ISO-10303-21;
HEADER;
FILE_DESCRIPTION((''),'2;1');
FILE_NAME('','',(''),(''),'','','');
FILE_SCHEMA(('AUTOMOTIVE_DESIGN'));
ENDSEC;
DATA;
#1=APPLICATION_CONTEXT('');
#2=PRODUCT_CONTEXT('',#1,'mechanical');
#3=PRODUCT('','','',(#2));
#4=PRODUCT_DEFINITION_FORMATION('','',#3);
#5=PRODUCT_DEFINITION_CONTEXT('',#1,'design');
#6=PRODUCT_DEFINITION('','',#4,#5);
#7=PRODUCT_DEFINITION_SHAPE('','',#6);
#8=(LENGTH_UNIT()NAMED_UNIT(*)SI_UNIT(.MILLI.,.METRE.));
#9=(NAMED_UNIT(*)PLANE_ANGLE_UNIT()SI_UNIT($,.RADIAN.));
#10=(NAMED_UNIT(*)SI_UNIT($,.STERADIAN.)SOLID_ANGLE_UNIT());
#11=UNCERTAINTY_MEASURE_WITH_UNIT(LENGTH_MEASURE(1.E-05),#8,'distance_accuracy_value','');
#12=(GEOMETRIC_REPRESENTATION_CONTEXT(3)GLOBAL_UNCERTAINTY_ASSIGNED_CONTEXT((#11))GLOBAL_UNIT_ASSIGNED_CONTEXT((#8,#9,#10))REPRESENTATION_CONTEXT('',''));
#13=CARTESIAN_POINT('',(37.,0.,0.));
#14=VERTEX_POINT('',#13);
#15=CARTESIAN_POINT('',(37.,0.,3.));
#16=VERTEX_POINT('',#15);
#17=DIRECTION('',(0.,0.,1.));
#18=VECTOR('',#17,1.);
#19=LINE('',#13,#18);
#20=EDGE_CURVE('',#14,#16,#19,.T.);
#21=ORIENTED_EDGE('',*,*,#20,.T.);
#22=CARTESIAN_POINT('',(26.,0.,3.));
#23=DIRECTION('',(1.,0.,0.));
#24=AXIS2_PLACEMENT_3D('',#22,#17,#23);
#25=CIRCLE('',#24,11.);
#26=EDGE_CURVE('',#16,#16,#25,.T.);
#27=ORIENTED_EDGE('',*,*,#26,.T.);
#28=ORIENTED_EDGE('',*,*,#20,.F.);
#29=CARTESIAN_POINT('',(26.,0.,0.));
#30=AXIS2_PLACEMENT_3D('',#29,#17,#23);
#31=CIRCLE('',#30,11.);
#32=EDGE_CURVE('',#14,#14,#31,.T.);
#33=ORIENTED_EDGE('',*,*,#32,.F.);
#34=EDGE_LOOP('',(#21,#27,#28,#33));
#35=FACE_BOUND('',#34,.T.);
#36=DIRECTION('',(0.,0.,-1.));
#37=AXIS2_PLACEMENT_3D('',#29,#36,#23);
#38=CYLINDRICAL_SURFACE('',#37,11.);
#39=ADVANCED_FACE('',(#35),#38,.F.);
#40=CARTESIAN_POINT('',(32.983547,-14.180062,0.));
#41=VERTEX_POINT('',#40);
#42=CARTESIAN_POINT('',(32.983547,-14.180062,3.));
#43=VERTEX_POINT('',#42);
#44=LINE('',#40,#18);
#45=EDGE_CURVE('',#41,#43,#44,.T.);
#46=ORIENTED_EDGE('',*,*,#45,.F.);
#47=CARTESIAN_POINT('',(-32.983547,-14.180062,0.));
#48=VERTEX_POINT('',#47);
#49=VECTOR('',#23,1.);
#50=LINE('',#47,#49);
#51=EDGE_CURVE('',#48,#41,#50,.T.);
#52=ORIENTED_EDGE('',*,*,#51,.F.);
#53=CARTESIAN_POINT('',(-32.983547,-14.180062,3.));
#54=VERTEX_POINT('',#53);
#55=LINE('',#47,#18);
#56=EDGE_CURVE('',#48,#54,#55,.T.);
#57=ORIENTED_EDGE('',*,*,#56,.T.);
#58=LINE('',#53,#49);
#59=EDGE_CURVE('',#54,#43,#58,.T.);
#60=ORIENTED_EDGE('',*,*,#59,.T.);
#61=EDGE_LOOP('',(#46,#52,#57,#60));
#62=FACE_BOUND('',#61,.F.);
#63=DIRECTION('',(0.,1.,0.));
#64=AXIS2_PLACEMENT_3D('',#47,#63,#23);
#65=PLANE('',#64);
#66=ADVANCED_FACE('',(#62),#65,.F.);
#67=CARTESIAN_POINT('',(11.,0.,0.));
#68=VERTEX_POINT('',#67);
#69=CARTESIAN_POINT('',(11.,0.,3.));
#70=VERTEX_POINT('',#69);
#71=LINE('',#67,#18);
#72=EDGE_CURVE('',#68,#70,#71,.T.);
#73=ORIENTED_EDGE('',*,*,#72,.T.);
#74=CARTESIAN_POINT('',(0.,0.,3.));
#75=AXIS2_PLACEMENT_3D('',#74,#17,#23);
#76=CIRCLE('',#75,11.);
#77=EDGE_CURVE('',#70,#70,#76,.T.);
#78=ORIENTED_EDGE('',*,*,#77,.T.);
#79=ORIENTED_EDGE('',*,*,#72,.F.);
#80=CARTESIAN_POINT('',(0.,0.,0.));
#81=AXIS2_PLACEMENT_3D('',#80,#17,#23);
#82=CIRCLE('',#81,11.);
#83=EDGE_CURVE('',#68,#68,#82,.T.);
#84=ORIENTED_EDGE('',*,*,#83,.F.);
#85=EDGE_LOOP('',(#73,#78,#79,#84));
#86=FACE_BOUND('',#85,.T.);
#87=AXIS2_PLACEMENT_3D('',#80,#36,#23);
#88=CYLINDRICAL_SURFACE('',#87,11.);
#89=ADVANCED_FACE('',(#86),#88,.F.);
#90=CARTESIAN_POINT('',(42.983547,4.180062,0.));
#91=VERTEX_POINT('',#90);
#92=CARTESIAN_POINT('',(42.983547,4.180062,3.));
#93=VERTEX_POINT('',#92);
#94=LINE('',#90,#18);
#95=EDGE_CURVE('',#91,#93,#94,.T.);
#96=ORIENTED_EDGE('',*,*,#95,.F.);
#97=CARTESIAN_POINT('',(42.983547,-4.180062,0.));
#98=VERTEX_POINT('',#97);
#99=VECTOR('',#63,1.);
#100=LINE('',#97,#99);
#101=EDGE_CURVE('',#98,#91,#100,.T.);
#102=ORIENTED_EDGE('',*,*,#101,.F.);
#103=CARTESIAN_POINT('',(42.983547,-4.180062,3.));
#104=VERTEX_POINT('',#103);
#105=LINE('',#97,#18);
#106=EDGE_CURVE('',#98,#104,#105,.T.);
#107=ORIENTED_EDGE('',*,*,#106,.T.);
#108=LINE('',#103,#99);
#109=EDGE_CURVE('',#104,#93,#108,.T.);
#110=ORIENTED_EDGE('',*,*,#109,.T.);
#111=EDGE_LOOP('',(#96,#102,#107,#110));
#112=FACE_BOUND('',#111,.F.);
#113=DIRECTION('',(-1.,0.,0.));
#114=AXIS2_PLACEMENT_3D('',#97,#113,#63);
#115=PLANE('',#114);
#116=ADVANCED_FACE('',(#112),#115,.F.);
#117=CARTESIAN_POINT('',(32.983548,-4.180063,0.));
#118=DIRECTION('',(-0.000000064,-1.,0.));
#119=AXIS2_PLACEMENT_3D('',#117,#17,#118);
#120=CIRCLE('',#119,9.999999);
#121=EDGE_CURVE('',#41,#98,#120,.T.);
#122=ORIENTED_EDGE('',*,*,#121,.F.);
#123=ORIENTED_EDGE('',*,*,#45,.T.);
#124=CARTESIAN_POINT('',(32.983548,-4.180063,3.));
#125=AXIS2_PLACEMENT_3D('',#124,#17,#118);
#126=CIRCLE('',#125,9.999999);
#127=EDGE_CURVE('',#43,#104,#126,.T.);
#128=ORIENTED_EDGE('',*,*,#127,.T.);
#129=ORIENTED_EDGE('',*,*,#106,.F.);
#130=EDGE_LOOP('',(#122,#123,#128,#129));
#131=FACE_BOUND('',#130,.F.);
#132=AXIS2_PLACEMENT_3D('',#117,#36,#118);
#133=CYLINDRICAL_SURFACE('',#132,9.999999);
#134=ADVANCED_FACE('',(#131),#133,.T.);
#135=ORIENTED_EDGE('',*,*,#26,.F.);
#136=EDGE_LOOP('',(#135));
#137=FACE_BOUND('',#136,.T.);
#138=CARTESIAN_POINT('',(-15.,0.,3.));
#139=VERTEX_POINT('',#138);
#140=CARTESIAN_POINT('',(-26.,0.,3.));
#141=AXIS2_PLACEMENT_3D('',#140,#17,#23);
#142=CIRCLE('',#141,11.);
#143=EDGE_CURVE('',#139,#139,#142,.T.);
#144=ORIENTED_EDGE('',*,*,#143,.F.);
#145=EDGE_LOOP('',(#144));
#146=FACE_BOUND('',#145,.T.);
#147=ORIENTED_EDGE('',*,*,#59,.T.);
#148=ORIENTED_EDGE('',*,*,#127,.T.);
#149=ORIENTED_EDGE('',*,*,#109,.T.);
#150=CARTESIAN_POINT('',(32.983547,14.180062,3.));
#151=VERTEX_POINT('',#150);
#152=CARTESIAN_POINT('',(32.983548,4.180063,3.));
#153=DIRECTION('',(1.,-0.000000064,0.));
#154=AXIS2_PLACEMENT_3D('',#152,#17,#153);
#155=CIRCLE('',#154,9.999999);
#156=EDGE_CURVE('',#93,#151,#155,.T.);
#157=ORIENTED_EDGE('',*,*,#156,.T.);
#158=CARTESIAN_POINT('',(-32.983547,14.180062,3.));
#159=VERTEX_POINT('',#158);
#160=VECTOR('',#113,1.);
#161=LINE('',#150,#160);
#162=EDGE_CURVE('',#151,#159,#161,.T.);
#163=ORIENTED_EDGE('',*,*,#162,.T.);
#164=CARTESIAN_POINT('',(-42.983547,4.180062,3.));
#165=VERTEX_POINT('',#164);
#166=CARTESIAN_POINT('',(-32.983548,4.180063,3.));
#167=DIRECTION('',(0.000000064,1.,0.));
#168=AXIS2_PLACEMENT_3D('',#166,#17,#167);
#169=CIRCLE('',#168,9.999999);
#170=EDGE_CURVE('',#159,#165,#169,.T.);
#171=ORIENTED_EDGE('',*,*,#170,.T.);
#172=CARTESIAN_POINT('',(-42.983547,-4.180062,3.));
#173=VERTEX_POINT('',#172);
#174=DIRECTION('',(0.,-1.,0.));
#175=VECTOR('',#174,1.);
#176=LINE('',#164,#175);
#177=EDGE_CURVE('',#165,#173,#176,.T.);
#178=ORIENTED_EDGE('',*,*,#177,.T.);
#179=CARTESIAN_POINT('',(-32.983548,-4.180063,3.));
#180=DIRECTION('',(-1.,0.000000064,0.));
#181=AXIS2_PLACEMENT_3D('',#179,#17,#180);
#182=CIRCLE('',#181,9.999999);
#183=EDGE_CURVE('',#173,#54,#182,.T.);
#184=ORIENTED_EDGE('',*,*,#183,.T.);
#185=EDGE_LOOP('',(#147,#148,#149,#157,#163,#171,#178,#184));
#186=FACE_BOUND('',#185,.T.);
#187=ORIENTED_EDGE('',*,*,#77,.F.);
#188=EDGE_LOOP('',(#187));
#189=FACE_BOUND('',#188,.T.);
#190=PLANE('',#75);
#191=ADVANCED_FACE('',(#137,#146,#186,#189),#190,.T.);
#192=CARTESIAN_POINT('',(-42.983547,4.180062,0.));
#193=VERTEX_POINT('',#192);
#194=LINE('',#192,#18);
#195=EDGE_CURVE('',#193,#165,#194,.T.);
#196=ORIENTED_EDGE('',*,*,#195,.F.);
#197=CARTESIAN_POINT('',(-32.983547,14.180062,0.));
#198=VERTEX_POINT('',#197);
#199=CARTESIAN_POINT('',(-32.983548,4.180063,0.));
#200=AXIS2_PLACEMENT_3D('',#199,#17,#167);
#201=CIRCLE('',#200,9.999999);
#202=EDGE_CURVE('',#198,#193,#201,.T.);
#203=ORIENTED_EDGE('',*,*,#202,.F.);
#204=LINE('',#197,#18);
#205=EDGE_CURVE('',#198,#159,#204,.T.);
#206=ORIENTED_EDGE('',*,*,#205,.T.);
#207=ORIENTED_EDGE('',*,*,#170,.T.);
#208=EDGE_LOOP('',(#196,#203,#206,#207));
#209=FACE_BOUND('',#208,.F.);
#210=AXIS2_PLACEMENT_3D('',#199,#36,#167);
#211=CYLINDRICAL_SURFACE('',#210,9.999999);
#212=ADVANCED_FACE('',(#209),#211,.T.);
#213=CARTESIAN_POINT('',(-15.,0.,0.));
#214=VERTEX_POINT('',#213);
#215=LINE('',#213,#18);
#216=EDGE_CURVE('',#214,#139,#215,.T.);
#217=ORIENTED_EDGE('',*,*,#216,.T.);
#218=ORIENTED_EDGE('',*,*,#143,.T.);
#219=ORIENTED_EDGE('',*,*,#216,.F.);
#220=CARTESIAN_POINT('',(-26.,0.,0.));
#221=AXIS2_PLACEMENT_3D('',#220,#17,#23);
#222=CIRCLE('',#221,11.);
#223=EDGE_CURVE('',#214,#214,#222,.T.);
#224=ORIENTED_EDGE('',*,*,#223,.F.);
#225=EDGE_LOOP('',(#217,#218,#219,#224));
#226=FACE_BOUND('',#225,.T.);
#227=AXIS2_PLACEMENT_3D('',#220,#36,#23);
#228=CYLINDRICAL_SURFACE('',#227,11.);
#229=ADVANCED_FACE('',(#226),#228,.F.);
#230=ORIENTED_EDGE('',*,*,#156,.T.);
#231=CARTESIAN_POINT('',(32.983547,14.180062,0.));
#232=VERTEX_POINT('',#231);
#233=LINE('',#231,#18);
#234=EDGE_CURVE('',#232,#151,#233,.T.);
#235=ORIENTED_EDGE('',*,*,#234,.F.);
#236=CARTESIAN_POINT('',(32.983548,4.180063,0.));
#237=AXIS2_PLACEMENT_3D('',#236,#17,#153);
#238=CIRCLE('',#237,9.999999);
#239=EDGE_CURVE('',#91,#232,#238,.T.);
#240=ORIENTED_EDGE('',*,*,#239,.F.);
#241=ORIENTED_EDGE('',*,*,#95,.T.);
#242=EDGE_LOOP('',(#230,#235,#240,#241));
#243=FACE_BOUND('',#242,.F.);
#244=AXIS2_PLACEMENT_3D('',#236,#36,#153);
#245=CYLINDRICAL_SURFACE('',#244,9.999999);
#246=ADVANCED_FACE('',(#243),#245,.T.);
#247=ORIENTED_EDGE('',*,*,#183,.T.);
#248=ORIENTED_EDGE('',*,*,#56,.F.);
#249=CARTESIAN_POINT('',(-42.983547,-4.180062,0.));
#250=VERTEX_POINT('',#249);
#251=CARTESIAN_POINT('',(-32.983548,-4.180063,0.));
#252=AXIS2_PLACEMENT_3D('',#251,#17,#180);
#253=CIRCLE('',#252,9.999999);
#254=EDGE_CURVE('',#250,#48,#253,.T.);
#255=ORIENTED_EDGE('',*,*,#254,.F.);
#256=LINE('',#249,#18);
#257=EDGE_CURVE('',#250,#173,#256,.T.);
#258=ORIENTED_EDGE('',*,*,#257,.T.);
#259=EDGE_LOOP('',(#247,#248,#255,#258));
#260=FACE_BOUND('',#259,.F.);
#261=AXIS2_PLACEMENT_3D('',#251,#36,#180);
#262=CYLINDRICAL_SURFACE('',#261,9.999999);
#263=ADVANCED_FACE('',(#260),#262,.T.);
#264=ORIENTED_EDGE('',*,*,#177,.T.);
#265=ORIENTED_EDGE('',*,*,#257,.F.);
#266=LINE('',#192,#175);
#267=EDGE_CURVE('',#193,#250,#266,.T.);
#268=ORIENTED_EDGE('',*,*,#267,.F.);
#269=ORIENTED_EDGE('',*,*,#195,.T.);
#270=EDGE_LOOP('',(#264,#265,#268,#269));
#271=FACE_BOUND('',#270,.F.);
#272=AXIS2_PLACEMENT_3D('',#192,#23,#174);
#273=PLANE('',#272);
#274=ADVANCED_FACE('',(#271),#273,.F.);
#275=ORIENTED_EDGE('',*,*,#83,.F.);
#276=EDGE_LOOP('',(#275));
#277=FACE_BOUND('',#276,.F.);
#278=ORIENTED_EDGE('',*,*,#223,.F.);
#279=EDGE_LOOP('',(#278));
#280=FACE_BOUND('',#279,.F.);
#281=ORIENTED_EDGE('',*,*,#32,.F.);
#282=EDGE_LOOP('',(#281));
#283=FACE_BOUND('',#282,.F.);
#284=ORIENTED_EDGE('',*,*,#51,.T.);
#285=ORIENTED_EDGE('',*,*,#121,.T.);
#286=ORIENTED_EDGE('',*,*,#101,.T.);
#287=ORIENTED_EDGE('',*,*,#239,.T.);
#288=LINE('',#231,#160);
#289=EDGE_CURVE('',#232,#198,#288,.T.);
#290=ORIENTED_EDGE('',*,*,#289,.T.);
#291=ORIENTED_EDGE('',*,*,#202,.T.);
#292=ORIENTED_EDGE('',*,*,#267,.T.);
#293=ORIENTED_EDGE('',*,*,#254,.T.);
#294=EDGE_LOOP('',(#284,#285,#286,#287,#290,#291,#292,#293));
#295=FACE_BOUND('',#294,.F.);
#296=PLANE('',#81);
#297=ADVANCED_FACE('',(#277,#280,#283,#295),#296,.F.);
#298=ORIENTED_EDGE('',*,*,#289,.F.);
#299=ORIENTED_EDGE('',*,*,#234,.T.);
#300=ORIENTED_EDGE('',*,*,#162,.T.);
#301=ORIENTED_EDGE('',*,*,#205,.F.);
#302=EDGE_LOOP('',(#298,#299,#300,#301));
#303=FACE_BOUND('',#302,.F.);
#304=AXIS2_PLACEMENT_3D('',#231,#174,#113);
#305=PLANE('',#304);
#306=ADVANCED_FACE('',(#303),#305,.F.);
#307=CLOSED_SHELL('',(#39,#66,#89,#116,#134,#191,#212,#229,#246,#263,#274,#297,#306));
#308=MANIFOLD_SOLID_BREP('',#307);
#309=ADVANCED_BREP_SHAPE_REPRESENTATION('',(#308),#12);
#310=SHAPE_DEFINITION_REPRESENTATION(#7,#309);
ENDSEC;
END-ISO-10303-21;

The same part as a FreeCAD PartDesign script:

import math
import FreeCAD as App
import Part
import Sketcher
Q = App.Units.Quantity

doc = App.newDocument("Part")
params = doc.addObject("Spreadsheet::Sheet", "Params")
for row, (alias, value) in enumerate([
    ("sketch1_diameter", "22 mm"),
    ("sketch1_radius", "9.999999 mm"),
    ("pad1_length", "3 mm"),
], start=1):
    params.set(f"A{row}", alias)
    params.set(f"B{row}", "=" + value)
    params.setAlias(f"B{row}", alias)

body = doc.addObject("PartDesign::Body", "Body")

# Sketch on XY plane
sketch1 = body.newObject("Sketcher::SketchObject", "Sketch")
sketch1.AttachmentSupport = (doc.getObject("XY_Plane"), [""])
sketch1.MapMode = "FlatFace"
sketch1.addGeometry(Part.LineSegment(App.Vector(33, 14, 0), App.Vector(-33, 14, 0)), False)
sketch1.addGeometry(Part.ArcOfCircle(Part.Circle(App.Vector(-33, 4, 0), App.Vector(0, 0, 1), 10), math.radians(90), math.radians(180)), False)
sketch1.addGeometry(Part.LineSegment(App.Vector(-43, 4, 0), App.Vector(-43, -4, 0)), False)
sketch1.addGeometry(Part.ArcOfCircle(Part.Circle(App.Vector(-33, -4, 0), App.Vector(0, 0, 1), 10), math.radians(180), math.radians(270)), False)
sketch1.addGeometry(Part.LineSegment(App.Vector(-33, -14, 0), App.Vector(33, -14, 0)), False)
sketch1.addGeometry(Part.ArcOfCircle(Part.Circle(App.Vector(33, -4, 0), App.Vector(0, 0, 1), 10), math.radians(-90), math.radians(0)), False)
sketch1.addGeometry(Part.LineSegment(App.Vector(43, -4, 0), App.Vector(43, 4, 0)), False)
sketch1.addGeometry(Part.ArcOfCircle(Part.Circle(App.Vector(33, 4, 0), App.Vector(0, 0, 1), 10), math.radians(0), math.radians(90)), False)
sketch1.addGeometry(Part.Circle(App.Vector(-26, 0, 0), App.Vector(0, 0, 1), 11), False)
sketch1.addGeometry(Part.Circle(App.Vector(0, 0, 0), App.Vector(0, 0, 1), 11), False)
sketch1.addGeometry(Part.Circle(App.Vector(26, 0, 0), App.Vector(0, 0, 1), 11), False)
sketch1.addConstraint(Sketcher.Constraint("Tangent", 0, 2, 1, 1))
sketch1.addConstraint(Sketcher.Constraint("Tangent", 1, 2, 2, 1))
sketch1.addConstraint(Sketcher.Constraint("Tangent", 2, 2, 3, 1))
sketch1.addConstraint(Sketcher.Constraint("Tangent", 3, 2, 4, 1))
sketch1.addConstraint(Sketcher.Constraint("Tangent", 4, 2, 5, 1))
sketch1.addConstraint(Sketcher.Constraint("Tangent", 5, 2, 6, 1))
sketch1.addConstraint(Sketcher.Constraint("Tangent", 6, 2, 7, 1))
sketch1.addConstraint(Sketcher.Constraint("Tangent", 7, 2, 0, 1))
sketch1.addConstraint(Sketcher.Constraint("Horizontal", 0))
sketch1.addConstraint(Sketcher.Constraint("Vertical", 2))
sketch1.addConstraint(Sketcher.Constraint("Horizontal", 4))
sketch1.addConstraint(Sketcher.Constraint("Vertical", 6))
sketch1.addConstraint(Sketcher.Constraint("Coincident", 9, 3, -1, 1))
sketch1.addConstraint(Sketcher.Constraint("Equal", 1, 3))
sketch1.addConstraint(Sketcher.Constraint("Equal", 3, 5))
sketch1.addConstraint(Sketcher.Constraint("Equal", 5, 7))
sketch1.addConstraint(Sketcher.Constraint("Equal", 8, 9))
sketch1.addConstraint(Sketcher.Constraint("Equal", 9, 10))
sketch1.addConstraint(Sketcher.Constraint("Symmetric", 1, 3, 5, 3, -1, 1))
sketch1.addConstraint(Sketcher.Constraint("Symmetric", 8, 3, 10, 3, -1, 1))
sketch1.addConstraint(Sketcher.Constraint("PointOnObject", 8, 3, -1))
sketch1.addConstraint(Sketcher.Constraint("Diameter", 8, Q("22 mm")))
sketch1.addConstraint(Sketcher.Constraint("Radius", 1, Q("9.999999 mm")))
sketch1.addConstraint(Sketcher.Constraint("DistanceX", 8, 3, -1, 1, Q("26 mm")))
sketch1.addConstraint(Sketcher.Constraint("DistanceX", 0, 2, 0, 1, Q("65.967094 mm")))
sketch1.addConstraint(Sketcher.Constraint("DistanceY", 2, 2, 2, 1, Q("8.360124 mm")))
sketch1.setExpression("Constraints[21]", "Params.sketch1_diameter")
sketch1.setExpression("Constraints[22]", "Params.sketch1_radius")
pad1 = body.newObject("PartDesign::Pad", "Pad")
pad1.Profile = sketch1
pad1.setExpression("Length", "Params.pad1_length")

doc.recompute()
